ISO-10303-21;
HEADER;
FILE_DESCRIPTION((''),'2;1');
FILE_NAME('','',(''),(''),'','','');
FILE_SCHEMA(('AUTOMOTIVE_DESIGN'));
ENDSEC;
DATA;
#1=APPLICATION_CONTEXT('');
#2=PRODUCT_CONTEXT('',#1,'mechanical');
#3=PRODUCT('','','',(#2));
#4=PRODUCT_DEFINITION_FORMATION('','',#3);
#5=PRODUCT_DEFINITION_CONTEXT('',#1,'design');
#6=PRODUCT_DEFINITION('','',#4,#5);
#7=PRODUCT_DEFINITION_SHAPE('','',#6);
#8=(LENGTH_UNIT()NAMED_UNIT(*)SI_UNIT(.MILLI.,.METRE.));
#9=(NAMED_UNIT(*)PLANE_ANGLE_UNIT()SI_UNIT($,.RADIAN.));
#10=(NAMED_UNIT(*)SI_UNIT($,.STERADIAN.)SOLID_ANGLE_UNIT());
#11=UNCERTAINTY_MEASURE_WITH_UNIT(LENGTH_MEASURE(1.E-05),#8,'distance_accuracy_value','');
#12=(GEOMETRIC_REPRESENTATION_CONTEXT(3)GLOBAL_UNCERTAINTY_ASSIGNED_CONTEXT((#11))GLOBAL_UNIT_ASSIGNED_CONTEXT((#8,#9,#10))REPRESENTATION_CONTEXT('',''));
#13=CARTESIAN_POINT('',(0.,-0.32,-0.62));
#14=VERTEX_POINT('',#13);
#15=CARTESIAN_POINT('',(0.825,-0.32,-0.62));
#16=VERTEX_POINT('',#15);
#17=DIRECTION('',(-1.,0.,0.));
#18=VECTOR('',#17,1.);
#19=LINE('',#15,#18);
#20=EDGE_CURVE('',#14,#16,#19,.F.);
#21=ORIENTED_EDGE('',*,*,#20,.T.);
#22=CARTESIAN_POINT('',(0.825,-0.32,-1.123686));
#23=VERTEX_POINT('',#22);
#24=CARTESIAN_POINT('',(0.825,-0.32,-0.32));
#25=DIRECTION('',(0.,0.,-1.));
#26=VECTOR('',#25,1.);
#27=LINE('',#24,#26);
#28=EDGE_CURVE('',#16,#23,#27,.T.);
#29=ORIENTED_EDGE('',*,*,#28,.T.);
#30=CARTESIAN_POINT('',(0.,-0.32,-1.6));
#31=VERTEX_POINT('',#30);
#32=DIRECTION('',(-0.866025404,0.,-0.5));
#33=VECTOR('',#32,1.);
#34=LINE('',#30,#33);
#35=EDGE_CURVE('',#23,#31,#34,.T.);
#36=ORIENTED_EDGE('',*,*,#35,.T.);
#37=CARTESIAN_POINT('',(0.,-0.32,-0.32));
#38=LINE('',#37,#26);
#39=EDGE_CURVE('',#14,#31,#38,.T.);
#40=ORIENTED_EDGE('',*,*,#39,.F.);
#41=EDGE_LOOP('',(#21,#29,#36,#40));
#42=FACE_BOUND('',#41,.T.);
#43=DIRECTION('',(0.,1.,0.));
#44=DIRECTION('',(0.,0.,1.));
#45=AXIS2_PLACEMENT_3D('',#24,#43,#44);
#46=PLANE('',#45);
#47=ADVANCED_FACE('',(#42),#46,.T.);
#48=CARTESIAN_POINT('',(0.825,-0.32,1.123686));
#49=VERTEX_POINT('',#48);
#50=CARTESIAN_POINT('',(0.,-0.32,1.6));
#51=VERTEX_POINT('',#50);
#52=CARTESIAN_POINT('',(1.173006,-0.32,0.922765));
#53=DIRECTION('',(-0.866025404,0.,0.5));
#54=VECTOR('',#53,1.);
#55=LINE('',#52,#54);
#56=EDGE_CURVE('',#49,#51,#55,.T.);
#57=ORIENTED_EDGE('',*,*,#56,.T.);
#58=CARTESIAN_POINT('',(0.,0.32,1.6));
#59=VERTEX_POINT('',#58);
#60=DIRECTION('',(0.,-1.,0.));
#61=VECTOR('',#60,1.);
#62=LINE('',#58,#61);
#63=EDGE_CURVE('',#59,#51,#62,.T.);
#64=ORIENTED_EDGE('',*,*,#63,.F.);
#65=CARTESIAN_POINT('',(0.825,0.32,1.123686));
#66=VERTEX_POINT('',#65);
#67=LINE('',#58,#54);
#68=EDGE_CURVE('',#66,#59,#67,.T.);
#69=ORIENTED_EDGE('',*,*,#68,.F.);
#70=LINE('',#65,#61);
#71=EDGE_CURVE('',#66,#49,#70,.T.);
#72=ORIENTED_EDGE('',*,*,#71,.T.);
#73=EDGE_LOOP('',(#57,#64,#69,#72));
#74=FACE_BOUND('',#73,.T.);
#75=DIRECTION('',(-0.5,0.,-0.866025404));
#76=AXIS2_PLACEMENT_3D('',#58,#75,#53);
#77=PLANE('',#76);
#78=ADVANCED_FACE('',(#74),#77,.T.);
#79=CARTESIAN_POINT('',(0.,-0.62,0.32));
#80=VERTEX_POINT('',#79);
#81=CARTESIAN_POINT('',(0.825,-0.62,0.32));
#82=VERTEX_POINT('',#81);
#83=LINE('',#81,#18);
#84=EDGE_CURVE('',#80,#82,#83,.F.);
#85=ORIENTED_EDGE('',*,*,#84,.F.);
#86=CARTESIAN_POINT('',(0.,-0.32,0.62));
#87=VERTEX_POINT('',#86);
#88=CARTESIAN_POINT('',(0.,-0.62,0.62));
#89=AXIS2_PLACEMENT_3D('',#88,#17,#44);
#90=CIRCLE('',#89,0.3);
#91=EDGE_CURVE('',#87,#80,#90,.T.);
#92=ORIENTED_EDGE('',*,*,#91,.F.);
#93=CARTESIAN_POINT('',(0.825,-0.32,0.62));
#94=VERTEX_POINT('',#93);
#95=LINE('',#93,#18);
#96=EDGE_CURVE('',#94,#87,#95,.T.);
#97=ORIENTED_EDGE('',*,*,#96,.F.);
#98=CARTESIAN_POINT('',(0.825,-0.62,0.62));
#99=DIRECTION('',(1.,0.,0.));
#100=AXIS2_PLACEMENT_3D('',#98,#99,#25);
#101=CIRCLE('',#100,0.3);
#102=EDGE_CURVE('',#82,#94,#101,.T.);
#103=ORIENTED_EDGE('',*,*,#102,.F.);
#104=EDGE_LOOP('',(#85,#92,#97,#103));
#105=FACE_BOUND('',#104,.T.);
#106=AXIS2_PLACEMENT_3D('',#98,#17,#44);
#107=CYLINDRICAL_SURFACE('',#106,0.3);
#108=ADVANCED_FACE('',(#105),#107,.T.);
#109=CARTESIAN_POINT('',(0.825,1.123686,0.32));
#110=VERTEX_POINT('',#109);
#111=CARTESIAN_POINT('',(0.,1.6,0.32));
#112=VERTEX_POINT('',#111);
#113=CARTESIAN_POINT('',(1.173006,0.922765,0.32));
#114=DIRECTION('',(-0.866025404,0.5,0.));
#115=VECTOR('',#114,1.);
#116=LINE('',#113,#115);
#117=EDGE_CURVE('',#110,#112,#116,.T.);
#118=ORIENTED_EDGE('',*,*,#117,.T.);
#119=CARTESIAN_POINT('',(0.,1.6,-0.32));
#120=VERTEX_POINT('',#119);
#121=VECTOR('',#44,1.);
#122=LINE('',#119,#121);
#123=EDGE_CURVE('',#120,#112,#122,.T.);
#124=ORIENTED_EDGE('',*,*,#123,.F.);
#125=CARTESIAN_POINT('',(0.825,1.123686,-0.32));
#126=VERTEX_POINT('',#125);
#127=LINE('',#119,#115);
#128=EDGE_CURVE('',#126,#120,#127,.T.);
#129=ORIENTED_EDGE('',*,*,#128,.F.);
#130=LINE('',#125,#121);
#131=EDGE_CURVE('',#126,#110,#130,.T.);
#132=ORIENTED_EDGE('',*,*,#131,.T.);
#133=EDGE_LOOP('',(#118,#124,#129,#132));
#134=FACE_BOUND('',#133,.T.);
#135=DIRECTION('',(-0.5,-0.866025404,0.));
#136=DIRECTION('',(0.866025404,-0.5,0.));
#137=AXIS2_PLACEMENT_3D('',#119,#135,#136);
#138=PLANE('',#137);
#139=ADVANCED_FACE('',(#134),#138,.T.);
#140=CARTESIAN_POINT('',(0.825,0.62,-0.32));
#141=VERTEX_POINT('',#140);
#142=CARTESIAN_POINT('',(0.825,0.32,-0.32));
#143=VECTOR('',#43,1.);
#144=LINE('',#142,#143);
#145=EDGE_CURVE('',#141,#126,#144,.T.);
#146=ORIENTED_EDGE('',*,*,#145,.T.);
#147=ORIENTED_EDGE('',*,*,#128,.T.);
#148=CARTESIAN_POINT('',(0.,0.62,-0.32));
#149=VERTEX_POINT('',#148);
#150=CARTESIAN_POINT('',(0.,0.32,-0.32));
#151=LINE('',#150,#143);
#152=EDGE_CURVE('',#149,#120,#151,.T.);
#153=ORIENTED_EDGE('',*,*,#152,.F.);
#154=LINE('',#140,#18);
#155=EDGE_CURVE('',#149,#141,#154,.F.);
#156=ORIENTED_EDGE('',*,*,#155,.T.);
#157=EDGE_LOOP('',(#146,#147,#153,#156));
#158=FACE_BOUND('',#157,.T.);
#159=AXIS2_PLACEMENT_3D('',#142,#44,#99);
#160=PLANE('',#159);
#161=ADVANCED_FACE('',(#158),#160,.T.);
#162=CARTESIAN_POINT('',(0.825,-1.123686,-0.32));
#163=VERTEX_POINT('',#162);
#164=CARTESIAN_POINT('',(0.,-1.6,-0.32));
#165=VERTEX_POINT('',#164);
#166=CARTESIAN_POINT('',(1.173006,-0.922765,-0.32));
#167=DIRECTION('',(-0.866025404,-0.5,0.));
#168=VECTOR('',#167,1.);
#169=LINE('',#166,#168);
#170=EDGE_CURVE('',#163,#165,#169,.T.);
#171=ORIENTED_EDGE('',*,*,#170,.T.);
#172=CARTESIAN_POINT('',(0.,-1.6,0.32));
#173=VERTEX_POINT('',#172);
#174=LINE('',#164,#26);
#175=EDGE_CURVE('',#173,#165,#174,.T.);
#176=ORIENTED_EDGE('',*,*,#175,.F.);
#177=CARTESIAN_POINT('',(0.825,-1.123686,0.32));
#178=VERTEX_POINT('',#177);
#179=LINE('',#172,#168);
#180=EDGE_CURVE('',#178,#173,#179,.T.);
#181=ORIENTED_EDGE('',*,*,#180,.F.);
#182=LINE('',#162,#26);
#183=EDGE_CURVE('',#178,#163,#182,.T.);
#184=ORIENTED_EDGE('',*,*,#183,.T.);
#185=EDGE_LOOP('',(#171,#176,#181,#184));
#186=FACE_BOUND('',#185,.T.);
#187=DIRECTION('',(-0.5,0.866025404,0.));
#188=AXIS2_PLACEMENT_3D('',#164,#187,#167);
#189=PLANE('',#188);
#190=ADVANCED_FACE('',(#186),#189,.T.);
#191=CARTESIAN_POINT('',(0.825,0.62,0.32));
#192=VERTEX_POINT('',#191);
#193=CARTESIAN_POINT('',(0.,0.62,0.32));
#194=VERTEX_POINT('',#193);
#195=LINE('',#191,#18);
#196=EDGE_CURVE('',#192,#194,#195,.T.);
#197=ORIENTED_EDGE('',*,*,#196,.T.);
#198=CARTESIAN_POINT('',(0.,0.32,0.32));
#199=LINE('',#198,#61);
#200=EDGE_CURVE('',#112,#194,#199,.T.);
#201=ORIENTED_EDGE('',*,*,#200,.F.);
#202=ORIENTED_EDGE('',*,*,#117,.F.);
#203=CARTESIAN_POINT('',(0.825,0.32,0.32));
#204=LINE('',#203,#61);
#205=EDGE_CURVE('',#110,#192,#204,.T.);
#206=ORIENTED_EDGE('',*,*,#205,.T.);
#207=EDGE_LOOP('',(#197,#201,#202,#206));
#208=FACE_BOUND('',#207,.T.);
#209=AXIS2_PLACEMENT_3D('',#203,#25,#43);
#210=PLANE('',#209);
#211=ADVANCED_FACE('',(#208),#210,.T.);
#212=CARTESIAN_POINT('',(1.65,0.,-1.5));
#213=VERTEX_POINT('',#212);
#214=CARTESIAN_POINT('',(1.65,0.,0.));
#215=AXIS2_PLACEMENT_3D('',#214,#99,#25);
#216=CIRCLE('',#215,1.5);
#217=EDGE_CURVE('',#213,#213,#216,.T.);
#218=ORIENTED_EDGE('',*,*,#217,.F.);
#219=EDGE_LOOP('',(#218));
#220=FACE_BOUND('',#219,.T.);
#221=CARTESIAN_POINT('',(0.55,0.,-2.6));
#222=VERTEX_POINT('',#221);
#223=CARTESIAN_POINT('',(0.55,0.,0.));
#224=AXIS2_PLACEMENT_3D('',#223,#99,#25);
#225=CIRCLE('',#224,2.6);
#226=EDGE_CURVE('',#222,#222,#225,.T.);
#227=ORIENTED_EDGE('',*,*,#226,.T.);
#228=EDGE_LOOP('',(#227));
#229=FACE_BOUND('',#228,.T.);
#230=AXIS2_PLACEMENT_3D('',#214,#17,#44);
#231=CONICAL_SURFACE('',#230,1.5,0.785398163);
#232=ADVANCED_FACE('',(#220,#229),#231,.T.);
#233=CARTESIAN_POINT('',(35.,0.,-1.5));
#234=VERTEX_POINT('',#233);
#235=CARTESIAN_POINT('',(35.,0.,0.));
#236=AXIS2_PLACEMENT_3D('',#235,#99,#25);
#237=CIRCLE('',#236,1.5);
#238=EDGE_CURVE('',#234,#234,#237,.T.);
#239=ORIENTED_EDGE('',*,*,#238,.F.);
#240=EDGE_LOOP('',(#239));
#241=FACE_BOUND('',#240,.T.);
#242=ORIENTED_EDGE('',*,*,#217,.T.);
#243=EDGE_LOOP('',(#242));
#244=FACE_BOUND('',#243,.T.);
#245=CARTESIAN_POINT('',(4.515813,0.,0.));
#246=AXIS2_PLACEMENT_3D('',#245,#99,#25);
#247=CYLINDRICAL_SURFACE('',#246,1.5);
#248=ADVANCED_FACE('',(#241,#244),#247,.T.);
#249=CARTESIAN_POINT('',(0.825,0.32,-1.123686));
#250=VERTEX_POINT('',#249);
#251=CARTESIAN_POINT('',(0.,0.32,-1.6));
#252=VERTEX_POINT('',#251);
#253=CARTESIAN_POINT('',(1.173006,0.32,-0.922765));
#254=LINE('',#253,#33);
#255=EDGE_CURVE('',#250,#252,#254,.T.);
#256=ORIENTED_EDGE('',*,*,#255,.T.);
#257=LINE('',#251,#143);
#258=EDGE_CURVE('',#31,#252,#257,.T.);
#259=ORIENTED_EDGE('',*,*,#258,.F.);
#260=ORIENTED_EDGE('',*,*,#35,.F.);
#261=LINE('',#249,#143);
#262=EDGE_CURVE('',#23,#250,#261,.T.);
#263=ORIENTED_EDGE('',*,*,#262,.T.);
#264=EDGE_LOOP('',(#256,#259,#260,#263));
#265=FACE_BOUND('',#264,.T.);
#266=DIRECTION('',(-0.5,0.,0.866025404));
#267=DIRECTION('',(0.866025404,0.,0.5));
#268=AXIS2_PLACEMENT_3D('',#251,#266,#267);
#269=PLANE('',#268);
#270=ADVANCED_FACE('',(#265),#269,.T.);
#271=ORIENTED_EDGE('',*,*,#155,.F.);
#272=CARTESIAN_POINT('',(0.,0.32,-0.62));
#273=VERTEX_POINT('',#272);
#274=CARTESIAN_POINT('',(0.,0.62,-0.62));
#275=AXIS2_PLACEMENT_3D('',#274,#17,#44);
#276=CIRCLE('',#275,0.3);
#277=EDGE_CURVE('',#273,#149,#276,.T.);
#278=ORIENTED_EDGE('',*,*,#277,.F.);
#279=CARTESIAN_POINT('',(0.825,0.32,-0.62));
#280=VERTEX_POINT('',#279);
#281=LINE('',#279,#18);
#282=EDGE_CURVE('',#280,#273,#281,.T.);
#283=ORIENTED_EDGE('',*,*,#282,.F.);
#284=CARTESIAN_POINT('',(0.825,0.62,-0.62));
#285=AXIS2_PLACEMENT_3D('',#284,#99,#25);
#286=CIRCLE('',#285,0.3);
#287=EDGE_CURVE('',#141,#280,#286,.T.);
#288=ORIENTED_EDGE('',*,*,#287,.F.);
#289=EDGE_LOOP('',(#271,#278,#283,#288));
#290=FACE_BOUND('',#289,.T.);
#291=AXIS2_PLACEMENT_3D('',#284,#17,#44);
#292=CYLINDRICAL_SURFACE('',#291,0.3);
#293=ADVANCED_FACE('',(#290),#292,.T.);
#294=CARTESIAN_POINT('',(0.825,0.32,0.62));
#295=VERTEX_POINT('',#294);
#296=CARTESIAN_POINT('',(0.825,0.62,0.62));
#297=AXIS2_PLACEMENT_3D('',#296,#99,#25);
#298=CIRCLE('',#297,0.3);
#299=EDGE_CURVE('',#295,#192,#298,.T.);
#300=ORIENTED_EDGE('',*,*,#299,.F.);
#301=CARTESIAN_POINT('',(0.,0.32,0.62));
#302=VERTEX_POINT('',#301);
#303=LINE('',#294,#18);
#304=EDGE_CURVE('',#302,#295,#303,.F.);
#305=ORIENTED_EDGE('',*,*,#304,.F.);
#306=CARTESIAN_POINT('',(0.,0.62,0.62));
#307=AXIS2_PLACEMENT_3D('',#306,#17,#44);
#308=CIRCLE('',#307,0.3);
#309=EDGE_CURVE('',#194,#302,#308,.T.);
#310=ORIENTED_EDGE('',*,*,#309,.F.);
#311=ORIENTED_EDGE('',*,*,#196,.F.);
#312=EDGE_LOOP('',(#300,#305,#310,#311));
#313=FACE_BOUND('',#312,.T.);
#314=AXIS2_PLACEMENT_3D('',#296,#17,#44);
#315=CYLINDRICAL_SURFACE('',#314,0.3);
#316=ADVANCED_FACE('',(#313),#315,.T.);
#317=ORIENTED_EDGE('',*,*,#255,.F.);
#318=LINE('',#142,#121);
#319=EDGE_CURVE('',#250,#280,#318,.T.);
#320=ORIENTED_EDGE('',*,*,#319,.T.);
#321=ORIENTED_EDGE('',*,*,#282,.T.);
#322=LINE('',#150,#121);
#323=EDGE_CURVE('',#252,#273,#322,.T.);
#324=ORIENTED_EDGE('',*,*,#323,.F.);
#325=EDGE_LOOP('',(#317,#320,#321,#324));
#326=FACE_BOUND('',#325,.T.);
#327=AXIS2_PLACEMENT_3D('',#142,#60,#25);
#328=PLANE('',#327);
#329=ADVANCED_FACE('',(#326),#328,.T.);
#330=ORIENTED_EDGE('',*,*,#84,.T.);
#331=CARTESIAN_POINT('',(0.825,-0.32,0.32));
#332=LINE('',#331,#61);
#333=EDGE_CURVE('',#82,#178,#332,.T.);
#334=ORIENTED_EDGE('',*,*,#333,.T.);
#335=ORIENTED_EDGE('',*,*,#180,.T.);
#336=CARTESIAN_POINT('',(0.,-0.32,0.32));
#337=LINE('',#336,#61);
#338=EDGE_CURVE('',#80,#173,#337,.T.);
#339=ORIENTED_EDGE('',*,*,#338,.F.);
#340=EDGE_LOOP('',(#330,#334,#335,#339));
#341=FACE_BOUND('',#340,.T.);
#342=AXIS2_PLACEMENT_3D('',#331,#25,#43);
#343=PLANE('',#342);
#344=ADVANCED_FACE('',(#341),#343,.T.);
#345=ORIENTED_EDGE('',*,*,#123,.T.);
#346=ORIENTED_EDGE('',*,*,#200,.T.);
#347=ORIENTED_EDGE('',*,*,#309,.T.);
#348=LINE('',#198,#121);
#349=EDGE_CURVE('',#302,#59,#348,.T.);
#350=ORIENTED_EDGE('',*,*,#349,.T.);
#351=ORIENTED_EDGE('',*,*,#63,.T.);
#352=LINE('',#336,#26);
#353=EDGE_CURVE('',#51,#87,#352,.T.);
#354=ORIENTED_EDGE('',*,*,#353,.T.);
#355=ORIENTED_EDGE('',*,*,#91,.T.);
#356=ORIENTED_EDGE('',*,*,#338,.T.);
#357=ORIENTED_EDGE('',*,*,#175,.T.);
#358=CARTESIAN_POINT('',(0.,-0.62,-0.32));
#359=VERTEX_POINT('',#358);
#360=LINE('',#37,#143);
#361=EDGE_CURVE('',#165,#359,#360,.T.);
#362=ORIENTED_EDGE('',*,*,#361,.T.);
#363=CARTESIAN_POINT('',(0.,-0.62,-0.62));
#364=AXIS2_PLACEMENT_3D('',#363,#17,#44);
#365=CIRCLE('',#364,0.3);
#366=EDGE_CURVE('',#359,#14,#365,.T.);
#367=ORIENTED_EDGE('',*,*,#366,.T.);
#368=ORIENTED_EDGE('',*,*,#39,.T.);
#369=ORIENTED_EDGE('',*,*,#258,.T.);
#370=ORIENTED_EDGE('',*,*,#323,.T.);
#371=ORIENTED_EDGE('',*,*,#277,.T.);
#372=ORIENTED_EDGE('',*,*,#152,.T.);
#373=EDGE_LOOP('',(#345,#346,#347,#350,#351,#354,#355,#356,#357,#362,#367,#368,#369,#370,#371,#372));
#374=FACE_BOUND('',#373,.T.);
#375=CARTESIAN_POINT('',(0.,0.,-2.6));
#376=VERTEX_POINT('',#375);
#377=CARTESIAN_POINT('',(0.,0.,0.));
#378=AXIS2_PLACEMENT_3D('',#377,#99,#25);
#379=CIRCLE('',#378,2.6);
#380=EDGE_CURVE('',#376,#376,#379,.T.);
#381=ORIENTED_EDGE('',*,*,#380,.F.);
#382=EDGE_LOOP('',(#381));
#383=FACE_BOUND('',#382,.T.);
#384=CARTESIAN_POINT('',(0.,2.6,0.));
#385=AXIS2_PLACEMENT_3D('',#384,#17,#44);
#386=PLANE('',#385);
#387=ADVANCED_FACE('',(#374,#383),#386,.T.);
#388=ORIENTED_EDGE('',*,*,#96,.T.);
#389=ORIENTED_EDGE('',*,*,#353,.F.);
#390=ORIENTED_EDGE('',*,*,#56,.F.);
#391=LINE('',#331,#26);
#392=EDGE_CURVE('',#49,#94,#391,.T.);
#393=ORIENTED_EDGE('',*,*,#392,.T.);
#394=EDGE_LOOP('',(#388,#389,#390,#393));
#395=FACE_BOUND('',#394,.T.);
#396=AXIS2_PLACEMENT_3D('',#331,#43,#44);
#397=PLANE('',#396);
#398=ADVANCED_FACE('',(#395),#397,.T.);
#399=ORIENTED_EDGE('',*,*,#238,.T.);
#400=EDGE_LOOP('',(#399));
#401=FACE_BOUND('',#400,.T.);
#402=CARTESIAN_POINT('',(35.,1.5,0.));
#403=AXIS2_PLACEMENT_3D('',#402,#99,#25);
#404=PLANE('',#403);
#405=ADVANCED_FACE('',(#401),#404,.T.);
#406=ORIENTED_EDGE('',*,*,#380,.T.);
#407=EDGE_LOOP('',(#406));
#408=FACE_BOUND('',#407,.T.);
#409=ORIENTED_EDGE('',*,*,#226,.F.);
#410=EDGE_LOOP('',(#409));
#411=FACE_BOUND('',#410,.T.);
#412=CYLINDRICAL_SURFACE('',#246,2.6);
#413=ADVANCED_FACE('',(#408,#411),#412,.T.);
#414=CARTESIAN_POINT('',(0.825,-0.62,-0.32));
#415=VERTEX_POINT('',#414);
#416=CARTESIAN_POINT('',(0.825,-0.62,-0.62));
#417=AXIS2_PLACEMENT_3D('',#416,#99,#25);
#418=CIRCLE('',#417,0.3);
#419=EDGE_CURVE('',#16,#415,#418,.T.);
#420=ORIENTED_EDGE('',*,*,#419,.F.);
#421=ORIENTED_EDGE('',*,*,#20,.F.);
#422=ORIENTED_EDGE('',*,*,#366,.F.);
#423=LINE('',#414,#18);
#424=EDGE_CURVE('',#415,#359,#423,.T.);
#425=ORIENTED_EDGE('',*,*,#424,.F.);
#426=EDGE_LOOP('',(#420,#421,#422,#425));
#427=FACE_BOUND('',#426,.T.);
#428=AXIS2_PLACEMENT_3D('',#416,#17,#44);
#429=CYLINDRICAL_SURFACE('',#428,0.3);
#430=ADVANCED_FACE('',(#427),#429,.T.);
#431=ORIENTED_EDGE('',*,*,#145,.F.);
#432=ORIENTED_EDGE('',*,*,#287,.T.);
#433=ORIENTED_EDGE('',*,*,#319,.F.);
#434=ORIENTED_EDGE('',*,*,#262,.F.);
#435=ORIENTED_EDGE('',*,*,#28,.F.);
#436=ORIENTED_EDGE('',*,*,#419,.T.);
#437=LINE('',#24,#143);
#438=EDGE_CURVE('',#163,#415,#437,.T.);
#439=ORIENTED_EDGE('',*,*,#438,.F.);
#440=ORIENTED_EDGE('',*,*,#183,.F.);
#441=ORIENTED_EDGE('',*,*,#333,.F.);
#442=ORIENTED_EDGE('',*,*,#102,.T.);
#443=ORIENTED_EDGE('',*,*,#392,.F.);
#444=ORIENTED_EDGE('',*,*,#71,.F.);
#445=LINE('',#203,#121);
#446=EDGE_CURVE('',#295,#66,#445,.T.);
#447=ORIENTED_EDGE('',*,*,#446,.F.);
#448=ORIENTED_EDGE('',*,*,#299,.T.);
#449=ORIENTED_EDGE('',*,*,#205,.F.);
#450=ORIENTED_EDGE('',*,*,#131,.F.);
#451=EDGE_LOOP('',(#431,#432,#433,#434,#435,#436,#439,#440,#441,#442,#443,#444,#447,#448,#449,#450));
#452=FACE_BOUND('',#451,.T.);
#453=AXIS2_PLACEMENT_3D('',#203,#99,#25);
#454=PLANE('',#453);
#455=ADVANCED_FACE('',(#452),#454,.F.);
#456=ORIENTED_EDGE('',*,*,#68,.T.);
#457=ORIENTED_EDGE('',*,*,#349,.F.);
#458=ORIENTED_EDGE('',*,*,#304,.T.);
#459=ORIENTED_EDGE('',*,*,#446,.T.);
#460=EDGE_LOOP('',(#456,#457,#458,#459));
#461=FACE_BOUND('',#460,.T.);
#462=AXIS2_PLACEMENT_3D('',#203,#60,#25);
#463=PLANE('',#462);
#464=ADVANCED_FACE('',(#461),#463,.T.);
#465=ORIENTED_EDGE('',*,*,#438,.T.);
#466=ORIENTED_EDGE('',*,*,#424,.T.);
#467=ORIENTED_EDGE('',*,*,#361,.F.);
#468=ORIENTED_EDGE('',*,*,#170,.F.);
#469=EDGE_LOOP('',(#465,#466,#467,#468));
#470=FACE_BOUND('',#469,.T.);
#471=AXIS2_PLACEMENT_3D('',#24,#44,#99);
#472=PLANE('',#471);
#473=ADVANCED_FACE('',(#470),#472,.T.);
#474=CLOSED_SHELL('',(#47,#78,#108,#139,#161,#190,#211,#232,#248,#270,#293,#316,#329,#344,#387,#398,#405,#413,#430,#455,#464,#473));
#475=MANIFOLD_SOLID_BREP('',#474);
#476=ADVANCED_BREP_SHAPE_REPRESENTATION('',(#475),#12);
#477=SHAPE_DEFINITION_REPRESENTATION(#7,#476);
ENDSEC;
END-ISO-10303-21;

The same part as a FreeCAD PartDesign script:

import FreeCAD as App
import Part
import Sketcher
from FreeCAD import Vector
Q = App.Units.Quantity


def edges_at(feature, points):
    """Names of the edges that pass closest to the given points."""
    edges = feature.Shape.Edges
    near = lambda p: min(range(len(edges)), key=lambda i: edges[i].distToShape(Part.Vertex(*p))[0])
    return sorted({f"Edge{near(p) + 1}" for p in points})


def faces_at(feature, points):
    """Names of the faces that lie closest to the given points."""
    faces = feature.Shape.Faces
    near = lambda p: min(range(len(faces)), key=lambda i: faces[i].distToShape(Part.Vertex(*p))[0])
    return sorted({f"Face{near(p) + 1}" for p in points})


def add_polygon(sketch, points):
    """Adds a closed chain of lines whose ends are joined by coincident constraints."""
    first, n = sketch.GeometryCount, len(points)
    for a, b in zip(points, points[1:] + points[:1]):
        sketch.addGeometry(Part.LineSegment(App.Vector(*a, 0), App.Vector(*b, 0)), False)
    for i in range(n):
        sketch.addConstraint(Sketcher.Constraint("Coincident", first + i, 2, first + (i + 1) % n, 1))

doc = App.newDocument("Part")
body = doc.addObject("PartDesign::Body", "Body")

sketch1 = doc.addObject("Sketcher::SketchObject", "Sketch")
body.addObject(sketch1)
sketch1.AttachmentSupport = (doc.XY_Plane, [""])
sketch1.MapMode = "FlatFace"
add_polygon(sketch1, [(35, 1.5), (1.6, 1.5), (0.6, 2.6), (0, 2.6), (0, 0), (35, 0)])
sketch1.addConstraint(Sketcher.Constraint("Horizontal", 0))
sketch1.addConstraint(Sketcher.Constraint("Horizontal", 2))
sketch1.addConstraint(Sketcher.Constraint("Vertical", 3))
sketch1.addConstraint(Sketcher.Constraint("Horizontal", 4))
sketch1.addConstraint(Sketcher.Constraint("Vertical", 5))
sketch1.addConstraint(Sketcher.Constraint("Coincident", 3, 2, -1, 1))
sketch1.addConstraint(Sketcher.Constraint("DistanceX", 4, 1, 4, 2, 35.0))
sketch1.addConstraint(Sketcher.Constraint("Angle", 1, Q("135 deg")))
sketch1.addConstraint(Sketcher.Constraint("DistanceY", 3, 2, 3, 1, 2.6))
sketch1.addConstraint(Sketcher.Constraint("DistanceY", 5, 1, 5, 2, 1.5))
sketch1.addConstraint(Sketcher.Constraint("DistanceX", 0, 2, 0, 1, 33.35))
revolution = doc.addObject("PartDesign::Revolution", "Revolution")
body.addObject(revolution)
revolution.Profile = sketch1
revolution.ReferenceAxis = (sketch1, ["H_Axis"])
revolution.Angle = 360

sketch2 = doc.addObject("Sketcher::SketchObject", "Sketch001")
body.addObject(sketch2)
sketch2.AttachmentSupport = (doc.YZ_Plane, [""])
sketch2.MapMode = "FlatFace"
add_polygon(sketch2, [(0.3, -0.3), (1.6, -0.3), (1.6, 0.3), (0.3, 0.3), (0.3, 1.6), (-0.3, 1.6), (-0.3, 0.3), (-1.6, 0.3), (-1.6, -0.3), (-0.3, -0.3), (-0.3, -1.6), (0.3, -1.6)])
sketch2.addConstraint(Sketcher.Constraint("Horizontal", 0))
sketch2.addConstraint(Sketcher.Constraint("Vertical", 1))
sketch2.addConstraint(Sketcher.Constraint("Horizontal", 2))
sketch2.addConstraint(Sketcher.Constraint("Vertical", 3))
sketch2.addConstraint(Sketcher.Constraint("Horizontal", 4))
sketch2.addConstraint(Sketcher.Constraint("Vertical", 5))
sketch2.addConstraint(Sketcher.Constraint("Horizontal", 6))
sketch2.addConstraint(Sketcher.Constraint("Vertical", 7))
sketch2.addConstraint(Sketcher.Constraint("Horizontal", 8))
sketch2.addConstraint(Sketcher.Constraint("Vertical", 9))
sketch2.addConstraint(Sketcher.Constraint("Horizontal", 10))
sketch2.addConstraint(Sketcher.Constraint("Vertical", 11))
sketch2.addConstraint(Sketcher.Constraint("Symmetric", 0, 2, 6, 2, -1, 1))
sketch2.addConstraint(Sketcher.Constraint("Symmetric", 2, 2, 8, 2, -1, 1))
sketch2.addConstraint(Sketcher.Constraint("Symmetric", 4, 2, 10, 2, -1, 1))
sketch2.addConstraint(Sketcher.Constraint("Symmetric", 2, 2, 5, 2, -2))
sketch2.addConstraint(Sketcher.Constraint("Equal", 10, 1))
sketch2.addConstraint(Sketcher.Constraint("Equal", 8, 3))
sketch2.addConstraint(Sketcher.Constraint("DistanceX", 0, 1, 0, 2, 1.28))
sketch2.addConstraint(Sketcher.Constraint("DistanceX", 4, 2, 4, 1, 0.64))
pocket1 = doc.addObject("PartDesign::Pocket", "Pocket")
body.addObject(pocket1)
pocket1.Profile = sketch2
pocket1.Length = 0.825
pocket1.Reversed = True
doc.recompute()

draft = doc.addObject("PartDesign::Draft", "Draft")
body.addObject(draft)
draft.Base = (pocket1, faces_at(pocket1, [
    (0.412, 1.6, 0),
    (0.412, 0, 1.6),
    (0.412, -1.6, 0),
    (0.412, 0, -1.6),
]))
draft.NeutralPlane = (doc.YZ_Plane, [""])
draft.Angle = 30
draft.Reversed = True
doc.recompute()

fillet = doc.addObject("PartDesign::Fillet", "Fillet")
body.addObject(fillet)
fillet.Base = (draft, edges_at(draft, [
    (0.412, 0.32, 0.32),
    (0.412, -0.32, 0.32),
    (0.412, -0.32, -0.32),
    (0.412, 0.32, -0.32),
]))
fillet.Radius = 0.3

doc.recompute()
